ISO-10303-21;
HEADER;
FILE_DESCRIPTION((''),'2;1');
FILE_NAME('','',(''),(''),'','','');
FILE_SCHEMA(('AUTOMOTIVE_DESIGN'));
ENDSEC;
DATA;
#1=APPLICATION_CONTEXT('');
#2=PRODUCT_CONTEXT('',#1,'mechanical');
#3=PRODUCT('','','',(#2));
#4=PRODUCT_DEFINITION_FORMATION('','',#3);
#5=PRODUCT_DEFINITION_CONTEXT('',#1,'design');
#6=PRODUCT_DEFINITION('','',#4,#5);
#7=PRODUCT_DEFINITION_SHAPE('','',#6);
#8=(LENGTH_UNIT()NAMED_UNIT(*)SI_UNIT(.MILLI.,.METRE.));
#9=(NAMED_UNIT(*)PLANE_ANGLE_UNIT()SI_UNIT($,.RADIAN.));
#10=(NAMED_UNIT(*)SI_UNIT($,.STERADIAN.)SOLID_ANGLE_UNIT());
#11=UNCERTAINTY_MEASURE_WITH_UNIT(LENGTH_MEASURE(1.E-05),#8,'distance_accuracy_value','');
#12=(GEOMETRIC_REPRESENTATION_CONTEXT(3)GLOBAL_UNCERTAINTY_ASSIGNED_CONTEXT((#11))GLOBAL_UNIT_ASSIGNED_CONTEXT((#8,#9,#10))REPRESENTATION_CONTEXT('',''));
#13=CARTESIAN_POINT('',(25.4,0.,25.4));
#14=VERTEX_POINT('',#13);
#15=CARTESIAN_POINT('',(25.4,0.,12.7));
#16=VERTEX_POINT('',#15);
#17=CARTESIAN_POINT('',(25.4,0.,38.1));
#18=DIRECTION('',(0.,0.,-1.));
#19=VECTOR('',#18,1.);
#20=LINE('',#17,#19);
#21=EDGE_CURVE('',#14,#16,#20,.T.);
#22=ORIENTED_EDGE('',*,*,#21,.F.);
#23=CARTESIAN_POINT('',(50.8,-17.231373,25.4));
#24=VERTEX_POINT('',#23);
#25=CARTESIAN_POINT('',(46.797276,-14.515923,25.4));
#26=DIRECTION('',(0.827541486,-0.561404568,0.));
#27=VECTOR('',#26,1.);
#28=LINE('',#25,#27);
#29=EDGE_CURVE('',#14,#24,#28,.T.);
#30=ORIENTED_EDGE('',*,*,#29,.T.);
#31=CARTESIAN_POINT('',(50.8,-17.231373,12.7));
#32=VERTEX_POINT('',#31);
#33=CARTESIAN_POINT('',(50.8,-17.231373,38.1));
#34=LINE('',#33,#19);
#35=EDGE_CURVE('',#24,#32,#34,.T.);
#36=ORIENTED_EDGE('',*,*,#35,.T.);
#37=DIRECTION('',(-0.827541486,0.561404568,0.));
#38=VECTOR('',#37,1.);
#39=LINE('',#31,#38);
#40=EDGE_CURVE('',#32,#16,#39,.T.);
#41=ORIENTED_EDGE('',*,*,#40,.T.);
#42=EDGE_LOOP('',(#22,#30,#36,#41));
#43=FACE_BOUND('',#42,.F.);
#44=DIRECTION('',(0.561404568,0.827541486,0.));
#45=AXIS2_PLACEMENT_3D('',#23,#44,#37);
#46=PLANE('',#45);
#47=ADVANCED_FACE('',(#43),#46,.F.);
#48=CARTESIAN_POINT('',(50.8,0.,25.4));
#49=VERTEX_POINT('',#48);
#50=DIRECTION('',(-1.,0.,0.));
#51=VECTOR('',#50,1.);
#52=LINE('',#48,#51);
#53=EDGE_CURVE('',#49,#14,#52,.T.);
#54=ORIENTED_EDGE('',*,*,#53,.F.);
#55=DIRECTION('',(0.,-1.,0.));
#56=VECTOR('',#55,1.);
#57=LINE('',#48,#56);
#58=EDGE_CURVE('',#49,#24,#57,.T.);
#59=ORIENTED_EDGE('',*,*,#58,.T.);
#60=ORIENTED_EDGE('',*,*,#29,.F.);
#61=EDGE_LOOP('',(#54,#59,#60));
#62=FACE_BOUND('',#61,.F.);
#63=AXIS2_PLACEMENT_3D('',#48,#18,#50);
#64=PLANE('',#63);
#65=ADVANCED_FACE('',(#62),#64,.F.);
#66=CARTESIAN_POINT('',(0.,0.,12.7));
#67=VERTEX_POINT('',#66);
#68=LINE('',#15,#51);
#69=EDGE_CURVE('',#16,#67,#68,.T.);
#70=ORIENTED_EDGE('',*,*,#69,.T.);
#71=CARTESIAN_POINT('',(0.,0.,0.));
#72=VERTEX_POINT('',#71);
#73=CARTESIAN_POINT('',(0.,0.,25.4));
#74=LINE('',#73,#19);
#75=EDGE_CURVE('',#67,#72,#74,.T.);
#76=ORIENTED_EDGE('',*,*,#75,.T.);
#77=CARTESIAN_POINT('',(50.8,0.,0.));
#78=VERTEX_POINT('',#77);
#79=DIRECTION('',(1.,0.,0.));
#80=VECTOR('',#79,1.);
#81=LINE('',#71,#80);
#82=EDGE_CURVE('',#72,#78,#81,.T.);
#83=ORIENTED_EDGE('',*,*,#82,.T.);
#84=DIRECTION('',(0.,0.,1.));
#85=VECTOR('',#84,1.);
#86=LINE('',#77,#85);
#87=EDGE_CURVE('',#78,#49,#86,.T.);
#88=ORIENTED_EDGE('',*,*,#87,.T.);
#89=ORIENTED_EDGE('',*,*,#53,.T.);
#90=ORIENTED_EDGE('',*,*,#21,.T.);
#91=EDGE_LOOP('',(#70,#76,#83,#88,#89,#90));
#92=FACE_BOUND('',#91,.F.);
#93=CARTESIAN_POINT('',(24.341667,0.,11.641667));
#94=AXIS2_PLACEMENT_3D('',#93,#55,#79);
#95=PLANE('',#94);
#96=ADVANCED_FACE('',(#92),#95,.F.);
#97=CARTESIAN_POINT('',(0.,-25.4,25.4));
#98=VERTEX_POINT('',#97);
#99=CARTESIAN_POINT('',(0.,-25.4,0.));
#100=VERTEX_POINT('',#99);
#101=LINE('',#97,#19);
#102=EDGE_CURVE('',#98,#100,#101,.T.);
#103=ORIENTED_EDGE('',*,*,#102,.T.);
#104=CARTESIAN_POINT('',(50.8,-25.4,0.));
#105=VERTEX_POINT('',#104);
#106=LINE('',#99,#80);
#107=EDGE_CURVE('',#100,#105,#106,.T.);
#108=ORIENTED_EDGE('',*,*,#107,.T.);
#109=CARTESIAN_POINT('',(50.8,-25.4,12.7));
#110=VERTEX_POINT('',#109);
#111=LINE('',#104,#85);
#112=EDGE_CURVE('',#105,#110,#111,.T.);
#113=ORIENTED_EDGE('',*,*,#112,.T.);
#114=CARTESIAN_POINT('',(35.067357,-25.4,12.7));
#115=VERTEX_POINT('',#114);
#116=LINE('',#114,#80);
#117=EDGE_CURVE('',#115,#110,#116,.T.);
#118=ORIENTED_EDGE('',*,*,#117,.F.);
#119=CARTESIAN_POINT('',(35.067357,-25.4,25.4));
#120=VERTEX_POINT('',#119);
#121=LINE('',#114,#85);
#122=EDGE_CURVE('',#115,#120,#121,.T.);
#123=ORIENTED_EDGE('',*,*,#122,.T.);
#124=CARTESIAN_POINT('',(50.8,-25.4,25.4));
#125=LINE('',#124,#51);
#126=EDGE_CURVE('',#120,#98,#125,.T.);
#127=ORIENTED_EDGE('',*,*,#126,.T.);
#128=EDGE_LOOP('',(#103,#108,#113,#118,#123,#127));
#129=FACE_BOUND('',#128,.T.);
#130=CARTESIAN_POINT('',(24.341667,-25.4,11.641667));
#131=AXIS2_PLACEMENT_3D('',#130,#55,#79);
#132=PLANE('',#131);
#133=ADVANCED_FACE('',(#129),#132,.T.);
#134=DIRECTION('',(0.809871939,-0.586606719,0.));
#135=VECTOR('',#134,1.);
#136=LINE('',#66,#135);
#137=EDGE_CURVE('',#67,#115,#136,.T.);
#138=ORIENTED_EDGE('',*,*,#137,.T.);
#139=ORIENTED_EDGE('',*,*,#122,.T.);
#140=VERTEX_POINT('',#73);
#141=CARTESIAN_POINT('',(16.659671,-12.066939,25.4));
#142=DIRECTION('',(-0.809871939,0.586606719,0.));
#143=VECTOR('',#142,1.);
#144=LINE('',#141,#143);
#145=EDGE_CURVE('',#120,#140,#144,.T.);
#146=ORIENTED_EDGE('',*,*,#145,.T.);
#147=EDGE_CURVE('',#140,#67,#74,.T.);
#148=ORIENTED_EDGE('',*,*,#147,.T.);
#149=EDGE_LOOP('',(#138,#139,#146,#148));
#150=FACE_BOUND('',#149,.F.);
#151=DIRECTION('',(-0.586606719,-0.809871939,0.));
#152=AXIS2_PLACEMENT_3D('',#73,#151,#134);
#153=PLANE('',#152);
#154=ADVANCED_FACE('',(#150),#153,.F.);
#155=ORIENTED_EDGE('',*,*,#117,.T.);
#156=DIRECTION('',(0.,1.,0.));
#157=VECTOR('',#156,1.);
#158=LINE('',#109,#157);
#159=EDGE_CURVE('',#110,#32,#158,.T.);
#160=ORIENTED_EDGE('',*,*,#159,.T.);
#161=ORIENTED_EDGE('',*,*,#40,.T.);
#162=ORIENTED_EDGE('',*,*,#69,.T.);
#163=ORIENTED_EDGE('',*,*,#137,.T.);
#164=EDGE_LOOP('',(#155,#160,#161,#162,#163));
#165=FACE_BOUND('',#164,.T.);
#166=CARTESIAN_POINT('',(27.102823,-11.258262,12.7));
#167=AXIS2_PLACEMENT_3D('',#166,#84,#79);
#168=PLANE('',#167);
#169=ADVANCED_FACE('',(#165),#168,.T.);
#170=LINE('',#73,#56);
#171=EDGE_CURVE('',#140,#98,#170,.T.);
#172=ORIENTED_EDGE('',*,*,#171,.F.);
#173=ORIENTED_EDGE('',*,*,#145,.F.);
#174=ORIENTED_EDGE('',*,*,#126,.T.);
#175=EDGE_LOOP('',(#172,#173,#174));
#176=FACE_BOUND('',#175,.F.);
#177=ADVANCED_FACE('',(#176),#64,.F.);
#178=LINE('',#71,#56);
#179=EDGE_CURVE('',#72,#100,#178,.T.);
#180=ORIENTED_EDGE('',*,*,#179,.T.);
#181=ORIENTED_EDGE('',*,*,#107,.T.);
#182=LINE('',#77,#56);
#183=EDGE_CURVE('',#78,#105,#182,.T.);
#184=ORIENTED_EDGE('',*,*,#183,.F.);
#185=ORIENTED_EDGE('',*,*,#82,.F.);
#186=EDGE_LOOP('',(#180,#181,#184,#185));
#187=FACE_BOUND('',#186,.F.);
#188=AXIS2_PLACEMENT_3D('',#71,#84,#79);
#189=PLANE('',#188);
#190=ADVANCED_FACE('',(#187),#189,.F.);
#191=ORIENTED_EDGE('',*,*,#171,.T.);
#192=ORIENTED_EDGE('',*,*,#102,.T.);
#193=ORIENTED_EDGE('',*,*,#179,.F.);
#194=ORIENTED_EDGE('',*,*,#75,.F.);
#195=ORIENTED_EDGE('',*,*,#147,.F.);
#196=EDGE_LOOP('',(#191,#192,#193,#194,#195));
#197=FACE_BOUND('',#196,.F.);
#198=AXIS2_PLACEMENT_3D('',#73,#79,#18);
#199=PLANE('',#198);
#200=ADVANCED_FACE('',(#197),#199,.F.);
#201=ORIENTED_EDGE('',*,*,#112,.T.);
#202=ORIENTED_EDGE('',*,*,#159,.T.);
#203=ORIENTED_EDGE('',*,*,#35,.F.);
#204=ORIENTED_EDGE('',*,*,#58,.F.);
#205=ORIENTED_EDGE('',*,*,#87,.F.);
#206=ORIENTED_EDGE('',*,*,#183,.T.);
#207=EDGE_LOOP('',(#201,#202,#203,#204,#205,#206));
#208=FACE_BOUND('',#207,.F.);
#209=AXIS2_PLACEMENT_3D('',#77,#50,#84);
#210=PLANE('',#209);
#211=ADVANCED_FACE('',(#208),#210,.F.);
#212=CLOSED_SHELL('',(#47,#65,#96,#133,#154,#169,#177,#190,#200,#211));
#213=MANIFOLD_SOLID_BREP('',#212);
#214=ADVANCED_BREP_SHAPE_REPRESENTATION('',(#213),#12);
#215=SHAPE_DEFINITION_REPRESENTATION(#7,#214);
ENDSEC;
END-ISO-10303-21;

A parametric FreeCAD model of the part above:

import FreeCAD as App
import Part
import Sketcher

V = App.Vector
Q = App.Units.Quantity


def add_polygon(sketch, points):
    """Adds a closed chain of lines whose ends are joined by coincident constraints."""
    first, n = sketch.GeometryCount, len(points)
    for a, b in zip(points, points[1:] + points[:1]):
        sketch.addGeometry(Part.LineSegment(App.Vector(*a, 0), App.Vector(*b, 0)), False)
    for i in range(n):
        sketch.addConstraint(Sketcher.Constraint("Coincident", first + i, 2, first + (i + 1) % n, 1))

doc = App.newDocument("Part")
body = doc.addObject("PartDesign::Body", "Body")

sketch1 = body.newObject("Sketcher::SketchObject", "Sketch")
sketch1.AttachmentSupport = (doc.getObject("XZ_Plane"), [""])
sketch1.MapMode = "FlatFace"
add_polygon(sketch1, [(0, 25.4), (0, 0), (50.8, 0), (50.8, 25.4)])
sketch1.addConstraint([
    Sketcher.Constraint("Vertical", 0),
    Sketcher.Constraint("Horizontal", 1),
    Sketcher.Constraint("Vertical", 2),
    Sketcher.Constraint("Horizontal", 3),
    Sketcher.Constraint("Coincident", 0, 2, -1, 1),
    Sketcher.Constraint("DistanceX", 1, 1, 1, 2, Q("2 in")),
    Sketcher.Constraint("DistanceY", 0, 2, 0, 1, Q("1 in")),
])
pad1 = body.newObject("PartDesign::Pad", "Pad")
pad1.Profile = sketch1
pad1.Length = Q("1 in")

sketch2 = body.newObject("Sketcher::SketchObject", "Sketch001")
sketch2.AttachmentSupport = (doc.getObject("XY_Plane"), [""])
sketch2.MapMode = "FlatFace"
sketch2.AttachmentOffset = App.Placement(V(0, 0, 1 * 25.4), App.Rotation())
add_polygon(sketch2, [(25.4, 0), (0, 0), (35.067357, -25.4), (50.8, -25.4), (50.8, -17.231373)])
sketch2.addConstraint([
    Sketcher.Constraint("Horizontal", 0),
    Sketcher.Constraint("Horizontal", 2),
    Sketcher.Constraint("Vertical", 3),
    Sketcher.Constraint("Coincident", 0, 2, -1, 1),
    Sketcher.Constraint("DistanceX", 0, 2, 0, 1, Q("1 in")),
    Sketcher.Constraint("DistanceY", 1, 2, -1, 1, Q("1 in")),
    Sketcher.Constraint("DistanceX", -1, 1, 2, 2, Q("2 in")),
    Sketcher.Constraint("Distance", 1, Q("43.299879 mm")),
    Sketcher.Constraint("DistanceY", 3, 1, 3, 2, Q("8.168627 mm")),
])
pocket1 = body.newObject("PartDesign::Pocket", "Pocket")
pocket1.Profile = sketch2
pocket1.Length = Q("1 in")
pocket1.Midplane = True

doc.recompute()
